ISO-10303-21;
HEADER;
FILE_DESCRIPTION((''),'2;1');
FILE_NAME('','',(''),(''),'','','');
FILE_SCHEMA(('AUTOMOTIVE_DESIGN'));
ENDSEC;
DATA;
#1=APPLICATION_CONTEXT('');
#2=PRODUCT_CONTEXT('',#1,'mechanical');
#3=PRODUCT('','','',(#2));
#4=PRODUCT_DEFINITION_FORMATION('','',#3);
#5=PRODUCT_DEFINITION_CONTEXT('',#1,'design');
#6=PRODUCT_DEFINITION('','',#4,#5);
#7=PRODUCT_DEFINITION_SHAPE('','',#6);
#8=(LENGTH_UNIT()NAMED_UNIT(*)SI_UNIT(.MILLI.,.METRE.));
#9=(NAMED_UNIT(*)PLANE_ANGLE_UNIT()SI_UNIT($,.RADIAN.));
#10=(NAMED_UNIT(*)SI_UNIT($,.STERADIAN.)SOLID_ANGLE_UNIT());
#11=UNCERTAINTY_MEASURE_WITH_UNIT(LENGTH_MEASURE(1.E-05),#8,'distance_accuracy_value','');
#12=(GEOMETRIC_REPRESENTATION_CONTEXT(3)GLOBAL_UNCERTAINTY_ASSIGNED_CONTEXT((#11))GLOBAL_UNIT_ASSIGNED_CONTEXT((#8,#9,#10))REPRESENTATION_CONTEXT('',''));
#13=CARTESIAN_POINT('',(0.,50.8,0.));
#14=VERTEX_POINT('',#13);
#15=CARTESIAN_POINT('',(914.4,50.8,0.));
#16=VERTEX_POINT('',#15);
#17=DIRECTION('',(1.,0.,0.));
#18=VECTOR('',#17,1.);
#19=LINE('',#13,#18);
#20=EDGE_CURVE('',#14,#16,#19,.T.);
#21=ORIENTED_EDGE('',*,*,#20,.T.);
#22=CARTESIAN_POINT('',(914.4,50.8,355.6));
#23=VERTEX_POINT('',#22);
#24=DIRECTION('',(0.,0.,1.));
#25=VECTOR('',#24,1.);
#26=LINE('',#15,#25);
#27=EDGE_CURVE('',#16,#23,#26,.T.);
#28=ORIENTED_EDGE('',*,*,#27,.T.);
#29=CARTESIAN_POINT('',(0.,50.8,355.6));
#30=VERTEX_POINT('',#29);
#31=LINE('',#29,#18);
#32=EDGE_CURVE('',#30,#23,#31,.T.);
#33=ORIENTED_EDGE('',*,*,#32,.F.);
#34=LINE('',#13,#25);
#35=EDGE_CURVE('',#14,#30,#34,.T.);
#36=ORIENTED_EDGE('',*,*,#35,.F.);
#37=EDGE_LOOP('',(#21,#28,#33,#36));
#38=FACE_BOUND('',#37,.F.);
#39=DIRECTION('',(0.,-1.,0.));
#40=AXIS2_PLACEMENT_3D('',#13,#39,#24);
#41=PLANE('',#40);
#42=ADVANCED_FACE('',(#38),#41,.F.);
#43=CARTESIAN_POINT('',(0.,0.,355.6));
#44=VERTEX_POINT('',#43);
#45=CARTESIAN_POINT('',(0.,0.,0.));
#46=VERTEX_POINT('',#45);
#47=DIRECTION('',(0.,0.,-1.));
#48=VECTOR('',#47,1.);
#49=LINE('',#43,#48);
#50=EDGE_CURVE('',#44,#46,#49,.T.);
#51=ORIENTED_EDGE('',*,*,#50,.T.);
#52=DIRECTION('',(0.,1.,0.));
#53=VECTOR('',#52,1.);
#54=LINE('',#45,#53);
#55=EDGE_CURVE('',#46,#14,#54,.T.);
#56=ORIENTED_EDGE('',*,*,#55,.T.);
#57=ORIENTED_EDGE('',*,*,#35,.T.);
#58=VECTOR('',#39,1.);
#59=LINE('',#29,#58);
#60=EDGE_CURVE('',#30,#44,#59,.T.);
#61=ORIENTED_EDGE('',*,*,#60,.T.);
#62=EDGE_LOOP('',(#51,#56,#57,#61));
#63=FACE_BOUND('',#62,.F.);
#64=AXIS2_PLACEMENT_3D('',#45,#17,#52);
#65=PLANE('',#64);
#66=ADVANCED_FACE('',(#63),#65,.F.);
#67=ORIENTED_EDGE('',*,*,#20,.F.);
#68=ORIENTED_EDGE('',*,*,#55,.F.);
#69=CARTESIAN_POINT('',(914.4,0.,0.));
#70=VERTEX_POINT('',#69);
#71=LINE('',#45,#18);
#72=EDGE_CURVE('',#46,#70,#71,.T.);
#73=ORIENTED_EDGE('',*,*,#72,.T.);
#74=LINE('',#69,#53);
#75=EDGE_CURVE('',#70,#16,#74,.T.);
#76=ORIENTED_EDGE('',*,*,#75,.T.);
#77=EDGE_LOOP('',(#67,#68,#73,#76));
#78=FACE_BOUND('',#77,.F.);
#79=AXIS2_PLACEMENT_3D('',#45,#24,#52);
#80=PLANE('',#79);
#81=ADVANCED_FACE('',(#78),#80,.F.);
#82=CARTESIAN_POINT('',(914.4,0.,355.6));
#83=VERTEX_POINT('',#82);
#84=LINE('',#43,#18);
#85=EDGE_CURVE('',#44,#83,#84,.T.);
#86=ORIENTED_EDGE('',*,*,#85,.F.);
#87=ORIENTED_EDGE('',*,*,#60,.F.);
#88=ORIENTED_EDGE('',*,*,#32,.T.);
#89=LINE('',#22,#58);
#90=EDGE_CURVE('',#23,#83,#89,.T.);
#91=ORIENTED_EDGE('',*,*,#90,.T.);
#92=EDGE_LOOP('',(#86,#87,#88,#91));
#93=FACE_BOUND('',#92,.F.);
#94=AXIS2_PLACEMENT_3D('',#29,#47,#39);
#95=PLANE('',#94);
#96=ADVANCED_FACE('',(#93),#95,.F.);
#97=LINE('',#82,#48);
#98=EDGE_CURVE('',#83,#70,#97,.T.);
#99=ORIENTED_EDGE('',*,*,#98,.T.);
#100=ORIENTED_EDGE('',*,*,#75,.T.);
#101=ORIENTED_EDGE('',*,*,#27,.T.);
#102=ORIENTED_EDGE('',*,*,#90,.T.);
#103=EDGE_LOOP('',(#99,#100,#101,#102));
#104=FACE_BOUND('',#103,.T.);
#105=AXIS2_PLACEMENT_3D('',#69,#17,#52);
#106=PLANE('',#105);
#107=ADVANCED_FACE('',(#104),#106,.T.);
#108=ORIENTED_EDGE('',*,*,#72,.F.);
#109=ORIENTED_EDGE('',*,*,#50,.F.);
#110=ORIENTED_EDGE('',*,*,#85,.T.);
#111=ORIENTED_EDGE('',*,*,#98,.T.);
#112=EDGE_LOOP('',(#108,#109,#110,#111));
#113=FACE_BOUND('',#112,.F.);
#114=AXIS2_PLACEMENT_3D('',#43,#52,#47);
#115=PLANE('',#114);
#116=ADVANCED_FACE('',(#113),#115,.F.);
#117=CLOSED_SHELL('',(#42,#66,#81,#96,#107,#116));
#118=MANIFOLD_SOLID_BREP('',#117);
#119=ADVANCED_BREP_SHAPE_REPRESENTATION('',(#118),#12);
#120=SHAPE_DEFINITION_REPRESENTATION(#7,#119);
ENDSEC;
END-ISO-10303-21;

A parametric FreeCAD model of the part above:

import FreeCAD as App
import Part
import Sketcher
Q = App.Units.Quantity


def add_polygon(sketch, points):
    """Adds a closed chain of lines whose ends are joined by coincident constraints."""
    first, n = sketch.GeometryCount, len(points)
    for a, b in zip(points, points[1:] + points[:1]):
        sketch.addGeometry(Part.LineSegment(App.Vector(*a, 0), App.Vector(*b, 0)), False)
    for i in range(n):
        sketch.addConstraint(Sketcher.Constraint("Coincident", first + i, 2, first + (i + 1) % n, 1))

doc = App.newDocument("Part")
params = doc.addObject("Spreadsheet::Sheet", "Params")
for row, (alias, value) in enumerate([
    ("sketch1_width", "2 in"),
    ("sketch1_height", "14 in"),
    ("pad1_length", "36 in"),
], start=1):
    params.set(f"A{row}", alias)
    params.set(f"B{row}", "=" + value)
    params.setAlias(f"B{row}", alias)

body = doc.addObject("PartDesign::Body", "Body")

# Sketch on YZ plane
sketch1 = body.newObject("Sketcher::SketchObject", "Sketch")
sketch1.AttachmentSupport = (doc.getObject("YZ_Plane"), [""])
sketch1.MapMode = "FlatFace"
add_polygon(sketch1, [(0, 356), (0, 0), (51, 0), (51, 356)])  # lines 0-3
sketch1.addConstraint([
    Sketcher.Constraint("Vertical", 0),
    Sketcher.Constraint("Horizontal", 1),
    Sketcher.Constraint("Vertical", 2),
    Sketcher.Constraint("Horizontal", 3),
    Sketcher.Constraint("Coincident", 0, 2, -1, 1),
    Sketcher.Constraint("DistanceX", 1, 1, 1, 2, Q("2 in")),
    Sketcher.Constraint("DistanceY", 0, 2, 0, 1, Q("14 in")),
])
sketch1.setExpression("Constraints[9]", "Params.sketch1_width")
sketch1.setExpression("Constraints[10]", "Params.sketch1_height")
pad1 = body.newObject("PartDesign::Pad", "Pad")
pad1.Profile = sketch1
pad1.setExpression("Length", "Params.pad1_length")

doc.recompute()
